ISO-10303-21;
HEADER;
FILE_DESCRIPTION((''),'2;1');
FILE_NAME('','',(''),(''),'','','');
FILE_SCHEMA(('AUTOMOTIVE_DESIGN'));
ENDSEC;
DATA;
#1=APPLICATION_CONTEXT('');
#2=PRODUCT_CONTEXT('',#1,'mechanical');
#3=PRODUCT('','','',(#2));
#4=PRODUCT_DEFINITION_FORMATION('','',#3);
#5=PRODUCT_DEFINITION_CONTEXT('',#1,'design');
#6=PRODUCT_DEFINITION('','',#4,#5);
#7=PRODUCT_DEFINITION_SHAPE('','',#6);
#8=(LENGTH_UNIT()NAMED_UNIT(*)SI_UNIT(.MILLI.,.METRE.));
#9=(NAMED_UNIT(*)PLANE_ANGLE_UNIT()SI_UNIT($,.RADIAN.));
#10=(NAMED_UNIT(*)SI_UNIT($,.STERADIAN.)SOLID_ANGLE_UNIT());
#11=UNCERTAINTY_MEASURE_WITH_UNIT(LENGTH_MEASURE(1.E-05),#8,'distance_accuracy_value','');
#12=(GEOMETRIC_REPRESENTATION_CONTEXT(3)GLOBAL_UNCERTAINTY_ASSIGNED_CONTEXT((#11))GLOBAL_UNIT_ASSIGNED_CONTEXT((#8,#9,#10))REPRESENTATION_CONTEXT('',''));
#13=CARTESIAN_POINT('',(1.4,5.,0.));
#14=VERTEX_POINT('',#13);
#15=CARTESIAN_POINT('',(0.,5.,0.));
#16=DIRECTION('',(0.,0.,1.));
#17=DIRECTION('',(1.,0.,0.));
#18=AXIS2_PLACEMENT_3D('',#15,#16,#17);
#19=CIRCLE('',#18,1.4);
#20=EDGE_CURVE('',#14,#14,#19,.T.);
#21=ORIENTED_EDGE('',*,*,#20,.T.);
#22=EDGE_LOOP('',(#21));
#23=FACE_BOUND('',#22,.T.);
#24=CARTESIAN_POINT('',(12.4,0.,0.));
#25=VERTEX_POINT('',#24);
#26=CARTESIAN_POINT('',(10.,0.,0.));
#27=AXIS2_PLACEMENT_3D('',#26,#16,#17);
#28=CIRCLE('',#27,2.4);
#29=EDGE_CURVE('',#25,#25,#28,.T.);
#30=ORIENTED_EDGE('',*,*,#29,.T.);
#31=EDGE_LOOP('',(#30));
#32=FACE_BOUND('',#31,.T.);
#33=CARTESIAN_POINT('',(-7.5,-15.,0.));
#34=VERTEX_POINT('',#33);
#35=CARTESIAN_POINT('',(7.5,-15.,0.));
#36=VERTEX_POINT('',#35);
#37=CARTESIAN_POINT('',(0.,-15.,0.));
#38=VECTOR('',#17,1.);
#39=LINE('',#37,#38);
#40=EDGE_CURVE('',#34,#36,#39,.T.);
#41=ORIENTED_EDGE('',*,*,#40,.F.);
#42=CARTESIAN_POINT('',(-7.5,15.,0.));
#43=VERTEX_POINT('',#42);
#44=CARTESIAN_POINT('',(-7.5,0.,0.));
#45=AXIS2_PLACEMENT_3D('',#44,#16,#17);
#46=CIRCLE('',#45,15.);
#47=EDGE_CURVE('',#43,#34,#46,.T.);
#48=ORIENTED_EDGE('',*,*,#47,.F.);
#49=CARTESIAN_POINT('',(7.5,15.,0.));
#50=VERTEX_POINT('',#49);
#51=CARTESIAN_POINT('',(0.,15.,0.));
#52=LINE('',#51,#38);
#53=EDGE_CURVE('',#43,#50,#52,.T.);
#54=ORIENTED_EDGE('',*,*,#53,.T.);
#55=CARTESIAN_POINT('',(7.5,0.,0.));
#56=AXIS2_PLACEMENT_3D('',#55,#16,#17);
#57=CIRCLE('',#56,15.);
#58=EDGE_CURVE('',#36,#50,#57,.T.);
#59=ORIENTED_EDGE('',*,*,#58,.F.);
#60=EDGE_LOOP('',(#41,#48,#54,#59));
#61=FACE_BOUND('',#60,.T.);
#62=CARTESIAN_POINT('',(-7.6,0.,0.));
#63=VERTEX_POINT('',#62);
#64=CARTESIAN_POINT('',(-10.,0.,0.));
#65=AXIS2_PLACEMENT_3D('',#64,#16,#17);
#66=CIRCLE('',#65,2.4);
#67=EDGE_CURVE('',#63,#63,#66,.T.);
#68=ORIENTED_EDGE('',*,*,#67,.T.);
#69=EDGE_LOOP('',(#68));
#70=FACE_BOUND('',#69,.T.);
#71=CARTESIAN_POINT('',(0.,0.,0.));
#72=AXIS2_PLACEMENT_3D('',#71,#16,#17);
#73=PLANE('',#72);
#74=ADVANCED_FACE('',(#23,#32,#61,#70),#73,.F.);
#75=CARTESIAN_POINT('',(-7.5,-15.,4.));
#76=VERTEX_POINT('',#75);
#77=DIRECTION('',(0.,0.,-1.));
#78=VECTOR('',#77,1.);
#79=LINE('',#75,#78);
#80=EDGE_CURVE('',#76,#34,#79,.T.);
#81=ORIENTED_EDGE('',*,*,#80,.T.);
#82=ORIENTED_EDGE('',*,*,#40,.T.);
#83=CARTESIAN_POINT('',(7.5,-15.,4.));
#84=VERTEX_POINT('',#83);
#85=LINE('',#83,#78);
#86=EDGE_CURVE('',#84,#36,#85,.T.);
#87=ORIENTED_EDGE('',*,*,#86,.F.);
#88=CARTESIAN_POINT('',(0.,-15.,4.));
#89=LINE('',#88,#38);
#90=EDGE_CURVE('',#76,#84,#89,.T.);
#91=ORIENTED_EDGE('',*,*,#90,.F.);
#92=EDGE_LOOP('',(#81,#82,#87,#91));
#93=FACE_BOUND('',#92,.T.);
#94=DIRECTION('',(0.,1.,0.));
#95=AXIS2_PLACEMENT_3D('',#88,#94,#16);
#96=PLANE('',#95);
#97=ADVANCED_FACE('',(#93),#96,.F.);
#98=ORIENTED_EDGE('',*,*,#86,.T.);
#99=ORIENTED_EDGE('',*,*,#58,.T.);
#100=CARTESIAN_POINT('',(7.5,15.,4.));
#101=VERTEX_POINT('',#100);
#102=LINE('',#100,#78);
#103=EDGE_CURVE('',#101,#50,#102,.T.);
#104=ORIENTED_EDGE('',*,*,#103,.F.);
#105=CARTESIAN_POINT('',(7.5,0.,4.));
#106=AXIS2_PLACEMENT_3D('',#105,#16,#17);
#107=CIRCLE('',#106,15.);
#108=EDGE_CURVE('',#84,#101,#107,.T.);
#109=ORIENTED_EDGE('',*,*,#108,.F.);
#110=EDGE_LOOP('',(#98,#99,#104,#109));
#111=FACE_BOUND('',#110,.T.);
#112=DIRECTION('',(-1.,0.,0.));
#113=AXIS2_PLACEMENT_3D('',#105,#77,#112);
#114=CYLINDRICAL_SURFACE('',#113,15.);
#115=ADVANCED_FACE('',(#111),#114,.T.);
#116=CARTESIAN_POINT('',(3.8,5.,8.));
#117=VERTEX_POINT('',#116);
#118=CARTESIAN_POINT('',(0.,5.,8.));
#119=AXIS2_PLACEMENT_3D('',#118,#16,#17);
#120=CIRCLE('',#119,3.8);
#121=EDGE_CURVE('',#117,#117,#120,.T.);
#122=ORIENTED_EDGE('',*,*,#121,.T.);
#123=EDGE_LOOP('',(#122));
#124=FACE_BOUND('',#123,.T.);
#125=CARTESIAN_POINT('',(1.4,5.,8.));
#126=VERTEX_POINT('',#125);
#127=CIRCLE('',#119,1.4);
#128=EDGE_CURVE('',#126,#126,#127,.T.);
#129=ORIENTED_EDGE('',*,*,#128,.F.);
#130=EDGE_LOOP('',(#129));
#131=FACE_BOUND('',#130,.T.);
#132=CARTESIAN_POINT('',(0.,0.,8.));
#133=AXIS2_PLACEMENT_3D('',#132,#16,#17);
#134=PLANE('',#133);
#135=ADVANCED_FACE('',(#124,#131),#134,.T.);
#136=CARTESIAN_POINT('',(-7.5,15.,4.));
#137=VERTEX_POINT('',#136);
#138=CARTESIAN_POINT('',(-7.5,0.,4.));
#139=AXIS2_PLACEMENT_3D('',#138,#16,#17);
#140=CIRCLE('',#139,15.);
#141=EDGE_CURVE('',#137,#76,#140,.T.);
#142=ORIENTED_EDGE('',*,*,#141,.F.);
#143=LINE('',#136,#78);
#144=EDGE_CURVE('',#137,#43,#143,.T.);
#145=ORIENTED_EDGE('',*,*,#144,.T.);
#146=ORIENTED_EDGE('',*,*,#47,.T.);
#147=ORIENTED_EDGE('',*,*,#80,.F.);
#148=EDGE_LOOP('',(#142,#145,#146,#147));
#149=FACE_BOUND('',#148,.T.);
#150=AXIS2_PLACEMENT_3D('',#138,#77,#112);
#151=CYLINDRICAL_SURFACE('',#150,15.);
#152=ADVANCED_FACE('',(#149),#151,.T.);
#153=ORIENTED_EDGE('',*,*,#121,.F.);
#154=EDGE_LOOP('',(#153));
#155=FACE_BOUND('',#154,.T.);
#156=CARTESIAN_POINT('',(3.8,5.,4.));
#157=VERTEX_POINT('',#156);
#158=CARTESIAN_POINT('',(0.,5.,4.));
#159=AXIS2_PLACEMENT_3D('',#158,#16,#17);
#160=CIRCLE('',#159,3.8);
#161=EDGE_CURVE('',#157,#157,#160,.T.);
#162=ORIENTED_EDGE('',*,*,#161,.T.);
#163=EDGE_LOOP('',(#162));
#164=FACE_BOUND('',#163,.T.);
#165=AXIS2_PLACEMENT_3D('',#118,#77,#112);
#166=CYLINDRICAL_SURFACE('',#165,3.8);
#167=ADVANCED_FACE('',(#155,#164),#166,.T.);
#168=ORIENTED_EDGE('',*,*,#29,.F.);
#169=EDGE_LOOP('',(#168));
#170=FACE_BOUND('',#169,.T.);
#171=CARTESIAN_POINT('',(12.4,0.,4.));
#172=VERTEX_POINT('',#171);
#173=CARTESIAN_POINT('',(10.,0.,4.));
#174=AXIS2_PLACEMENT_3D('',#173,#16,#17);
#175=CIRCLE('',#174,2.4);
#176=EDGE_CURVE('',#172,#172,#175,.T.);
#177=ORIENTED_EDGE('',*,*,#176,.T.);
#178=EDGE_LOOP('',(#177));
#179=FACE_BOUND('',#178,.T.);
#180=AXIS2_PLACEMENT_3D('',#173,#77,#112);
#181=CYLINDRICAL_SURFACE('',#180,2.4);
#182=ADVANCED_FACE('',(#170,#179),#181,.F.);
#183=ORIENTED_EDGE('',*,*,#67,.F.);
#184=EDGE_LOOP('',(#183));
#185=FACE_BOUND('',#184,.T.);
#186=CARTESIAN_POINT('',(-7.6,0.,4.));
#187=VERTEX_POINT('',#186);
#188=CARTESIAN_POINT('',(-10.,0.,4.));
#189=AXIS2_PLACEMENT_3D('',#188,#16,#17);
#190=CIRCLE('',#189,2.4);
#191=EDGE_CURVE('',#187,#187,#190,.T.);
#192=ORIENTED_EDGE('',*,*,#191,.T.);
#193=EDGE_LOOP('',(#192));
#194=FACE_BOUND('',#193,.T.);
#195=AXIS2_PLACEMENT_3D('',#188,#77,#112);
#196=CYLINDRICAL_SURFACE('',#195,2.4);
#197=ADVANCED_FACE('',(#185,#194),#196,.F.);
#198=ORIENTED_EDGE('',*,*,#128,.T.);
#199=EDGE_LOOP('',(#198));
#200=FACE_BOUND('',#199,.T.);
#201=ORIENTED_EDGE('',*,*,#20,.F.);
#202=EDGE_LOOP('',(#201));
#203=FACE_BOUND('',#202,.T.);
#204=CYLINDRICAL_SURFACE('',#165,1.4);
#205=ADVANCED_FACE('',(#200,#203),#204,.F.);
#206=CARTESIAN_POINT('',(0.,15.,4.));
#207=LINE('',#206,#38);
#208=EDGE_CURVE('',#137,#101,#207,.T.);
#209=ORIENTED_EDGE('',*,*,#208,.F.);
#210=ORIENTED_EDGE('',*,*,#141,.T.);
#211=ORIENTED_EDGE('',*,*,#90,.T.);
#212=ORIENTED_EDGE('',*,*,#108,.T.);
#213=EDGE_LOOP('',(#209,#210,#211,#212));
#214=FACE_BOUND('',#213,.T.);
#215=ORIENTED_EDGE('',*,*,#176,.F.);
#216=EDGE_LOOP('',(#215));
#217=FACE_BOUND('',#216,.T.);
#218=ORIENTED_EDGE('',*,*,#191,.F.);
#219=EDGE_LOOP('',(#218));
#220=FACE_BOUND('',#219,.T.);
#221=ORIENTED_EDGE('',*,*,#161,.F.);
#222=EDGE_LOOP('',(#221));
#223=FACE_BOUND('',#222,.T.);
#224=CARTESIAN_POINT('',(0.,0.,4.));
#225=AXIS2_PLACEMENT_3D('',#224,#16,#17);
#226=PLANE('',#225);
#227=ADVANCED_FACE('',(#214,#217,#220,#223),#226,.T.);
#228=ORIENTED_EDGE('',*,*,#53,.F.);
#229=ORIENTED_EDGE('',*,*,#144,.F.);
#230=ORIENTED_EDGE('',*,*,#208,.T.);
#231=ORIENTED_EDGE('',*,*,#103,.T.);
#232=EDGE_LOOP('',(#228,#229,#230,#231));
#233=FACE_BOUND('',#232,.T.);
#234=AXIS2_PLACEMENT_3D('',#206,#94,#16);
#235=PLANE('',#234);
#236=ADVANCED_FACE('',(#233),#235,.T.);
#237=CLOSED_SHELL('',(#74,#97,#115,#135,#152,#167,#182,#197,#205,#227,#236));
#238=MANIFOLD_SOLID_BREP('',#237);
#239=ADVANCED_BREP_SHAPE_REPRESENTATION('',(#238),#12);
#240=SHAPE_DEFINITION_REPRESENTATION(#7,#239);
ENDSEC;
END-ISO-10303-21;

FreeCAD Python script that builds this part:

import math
import FreeCAD as App
import Part
import Sketcher

doc = App.newDocument("Part")
params = doc.addObject("Spreadsheet::Sheet", "Params")
for row, (alias, value) in enumerate([
    ("sketch1_radius", "15 mm"),
    ("sketch1_diameter", "4.8 mm"),
    ("sketch1_diameter2", "7.6 mm"),
    ("sketch1_width", "15 mm"),
    ("pad1_length", "4 mm"),
    ("sketch2_diameter", "7.6 mm"),
    ("sketch2_diameter2", "2.8 mm"),
    ("pad2_length", "8 mm"),
], start=1):
    params.set(f"A{row}", alias)
    params.set(f"B{row}", "=" + value)
    params.setAlias(f"B{row}", alias)

body = doc.addObject("PartDesign::Body", "Body")

# Sketch on XY plane
sketch1 = doc.addObject("Sketcher::SketchObject", "Sketch")
body.addObject(sketch1)
sketch1.AttachmentSupport = (doc.XY_Plane, [""])
sketch1.MapMode = "FlatFace"
sketch1.addGeometry([
    Part.LineSegment(App.Vector(7.5, 15, 0), App.Vector(-7.5, 15, 0)),  # 0
    Part.ArcOfCircle(Part.Circle(App.Vector(-7.5, 0, 0), App.Vector(0, 0, 1), 15), math.radians(90), math.radians(270)),  # 1
    Part.LineSegment(App.Vector(-7.5, -15, 0), App.Vector(7.5, -15, 0)),  # 2
    Part.ArcOfCircle(Part.Circle(App.Vector(7.5, 0, 0), App.Vector(0, 0, 1), 15), math.radians(-90), math.radians(90)),  # 3
    Part.Circle(App.Vector(10, 0, 0), App.Vector(0, 0, 1), 2.4),  # 4
    Part.Circle(App.Vector(-10, 0, 0), App.Vector(0, 0, 1), 2.4),  # 5
    Part.Circle(App.Vector(0, 5, 0), App.Vector(0, 0, 1), 3.8),  # 6
], False)
sketch1.addConstraint([
    Sketcher.Constraint("Tangent", 0, 2, 1, 1),
    Sketcher.Constraint("Tangent", 1, 2, 2, 1),
    Sketcher.Constraint("Tangent", 2, 2, 3, 1),
    Sketcher.Constraint("Tangent", 3, 2, 0, 1),
    Sketcher.Constraint("Horizontal", 0),
    Sketcher.Constraint("Horizontal", 2),
    Sketcher.Constraint("Equal", 4, 5),
    Sketcher.Constraint("Symmetric", 1, 3, 3, 3, -1, 1),
    Sketcher.Constraint("Symmetric", 4, 3, 5, 3, -1, 1),
    Sketcher.Constraint("PointOnObject", 4, 3, -1),
    Sketcher.Constraint("PointOnObject", 6, 3, -2),
    Sketcher.Constraint("Radius", 1, 15.0),
    Sketcher.Constraint("Diameter", 4, 4.8),
    Sketcher.Constraint("Diameter", 6, 7.6),
    Sketcher.Constraint("DistanceX", 0, 2, 0, 1, 15.0),
    Sketcher.Constraint("DistanceX", -1, 1, 4, 3, 10.0),
    Sketcher.Constraint("DistanceY", -1, 1, 6, 3, 5.0),
])
sketch1.setExpression("Constraints[11]", "Params.sketch1_radius")
sketch1.setExpression("Constraints[12]", "Params.sketch1_diameter")
sketch1.setExpression("Constraints[13]", "Params.sketch1_diameter2")
sketch1.setExpression("Constraints[14]", "Params.sketch1_width")
pad1 = doc.addObject("PartDesign::Pad", "Pad")
body.addObject(pad1)
pad1.Profile = sketch1
pad1.setExpression("Length", "Params.pad1_length")

# Sketch on XY plane
sketch2 = doc.addObject("Sketcher::SketchObject", "Sketch001")
body.addObject(sketch2)
sketch2.AttachmentSupport = (doc.XY_Plane, [""])
sketch2.MapMode = "FlatFace"
sketch2.addGeometry([
    Part.Circle(App.Vector(0, 5, 0), App.Vector(0, 0, 1), 3.8),
    Part.Circle(App.Vector(0, 5, 0), App.Vector(0, 0, 1), 1.4),
], False)
sketch2.addConstraint([
    Sketcher.Constraint("Coincident", 1, 3, 0, 3),
    Sketcher.Constraint("PointOnObject", 0, 3, -2),
    Sketcher.Constraint("Diameter", 0, 7.6),
    Sketcher.Constraint("Diameter", 1, 2.8),
    Sketcher.Constraint("DistanceY", -1, 1, 0, 3, 5.0),
])
sketch2.setExpression("Constraints[2]", "Params.sketch2_diameter")
sketch2.setExpression("Constraints[3]", "Params.sketch2_diameter2")
pad2 = doc.addObject("PartDesign::Pad", "Pad001")
body.addObject(pad2)
pad2.Profile = sketch2
pad2.setExpression("Length", "Params.pad2_length")

doc.recompute()
